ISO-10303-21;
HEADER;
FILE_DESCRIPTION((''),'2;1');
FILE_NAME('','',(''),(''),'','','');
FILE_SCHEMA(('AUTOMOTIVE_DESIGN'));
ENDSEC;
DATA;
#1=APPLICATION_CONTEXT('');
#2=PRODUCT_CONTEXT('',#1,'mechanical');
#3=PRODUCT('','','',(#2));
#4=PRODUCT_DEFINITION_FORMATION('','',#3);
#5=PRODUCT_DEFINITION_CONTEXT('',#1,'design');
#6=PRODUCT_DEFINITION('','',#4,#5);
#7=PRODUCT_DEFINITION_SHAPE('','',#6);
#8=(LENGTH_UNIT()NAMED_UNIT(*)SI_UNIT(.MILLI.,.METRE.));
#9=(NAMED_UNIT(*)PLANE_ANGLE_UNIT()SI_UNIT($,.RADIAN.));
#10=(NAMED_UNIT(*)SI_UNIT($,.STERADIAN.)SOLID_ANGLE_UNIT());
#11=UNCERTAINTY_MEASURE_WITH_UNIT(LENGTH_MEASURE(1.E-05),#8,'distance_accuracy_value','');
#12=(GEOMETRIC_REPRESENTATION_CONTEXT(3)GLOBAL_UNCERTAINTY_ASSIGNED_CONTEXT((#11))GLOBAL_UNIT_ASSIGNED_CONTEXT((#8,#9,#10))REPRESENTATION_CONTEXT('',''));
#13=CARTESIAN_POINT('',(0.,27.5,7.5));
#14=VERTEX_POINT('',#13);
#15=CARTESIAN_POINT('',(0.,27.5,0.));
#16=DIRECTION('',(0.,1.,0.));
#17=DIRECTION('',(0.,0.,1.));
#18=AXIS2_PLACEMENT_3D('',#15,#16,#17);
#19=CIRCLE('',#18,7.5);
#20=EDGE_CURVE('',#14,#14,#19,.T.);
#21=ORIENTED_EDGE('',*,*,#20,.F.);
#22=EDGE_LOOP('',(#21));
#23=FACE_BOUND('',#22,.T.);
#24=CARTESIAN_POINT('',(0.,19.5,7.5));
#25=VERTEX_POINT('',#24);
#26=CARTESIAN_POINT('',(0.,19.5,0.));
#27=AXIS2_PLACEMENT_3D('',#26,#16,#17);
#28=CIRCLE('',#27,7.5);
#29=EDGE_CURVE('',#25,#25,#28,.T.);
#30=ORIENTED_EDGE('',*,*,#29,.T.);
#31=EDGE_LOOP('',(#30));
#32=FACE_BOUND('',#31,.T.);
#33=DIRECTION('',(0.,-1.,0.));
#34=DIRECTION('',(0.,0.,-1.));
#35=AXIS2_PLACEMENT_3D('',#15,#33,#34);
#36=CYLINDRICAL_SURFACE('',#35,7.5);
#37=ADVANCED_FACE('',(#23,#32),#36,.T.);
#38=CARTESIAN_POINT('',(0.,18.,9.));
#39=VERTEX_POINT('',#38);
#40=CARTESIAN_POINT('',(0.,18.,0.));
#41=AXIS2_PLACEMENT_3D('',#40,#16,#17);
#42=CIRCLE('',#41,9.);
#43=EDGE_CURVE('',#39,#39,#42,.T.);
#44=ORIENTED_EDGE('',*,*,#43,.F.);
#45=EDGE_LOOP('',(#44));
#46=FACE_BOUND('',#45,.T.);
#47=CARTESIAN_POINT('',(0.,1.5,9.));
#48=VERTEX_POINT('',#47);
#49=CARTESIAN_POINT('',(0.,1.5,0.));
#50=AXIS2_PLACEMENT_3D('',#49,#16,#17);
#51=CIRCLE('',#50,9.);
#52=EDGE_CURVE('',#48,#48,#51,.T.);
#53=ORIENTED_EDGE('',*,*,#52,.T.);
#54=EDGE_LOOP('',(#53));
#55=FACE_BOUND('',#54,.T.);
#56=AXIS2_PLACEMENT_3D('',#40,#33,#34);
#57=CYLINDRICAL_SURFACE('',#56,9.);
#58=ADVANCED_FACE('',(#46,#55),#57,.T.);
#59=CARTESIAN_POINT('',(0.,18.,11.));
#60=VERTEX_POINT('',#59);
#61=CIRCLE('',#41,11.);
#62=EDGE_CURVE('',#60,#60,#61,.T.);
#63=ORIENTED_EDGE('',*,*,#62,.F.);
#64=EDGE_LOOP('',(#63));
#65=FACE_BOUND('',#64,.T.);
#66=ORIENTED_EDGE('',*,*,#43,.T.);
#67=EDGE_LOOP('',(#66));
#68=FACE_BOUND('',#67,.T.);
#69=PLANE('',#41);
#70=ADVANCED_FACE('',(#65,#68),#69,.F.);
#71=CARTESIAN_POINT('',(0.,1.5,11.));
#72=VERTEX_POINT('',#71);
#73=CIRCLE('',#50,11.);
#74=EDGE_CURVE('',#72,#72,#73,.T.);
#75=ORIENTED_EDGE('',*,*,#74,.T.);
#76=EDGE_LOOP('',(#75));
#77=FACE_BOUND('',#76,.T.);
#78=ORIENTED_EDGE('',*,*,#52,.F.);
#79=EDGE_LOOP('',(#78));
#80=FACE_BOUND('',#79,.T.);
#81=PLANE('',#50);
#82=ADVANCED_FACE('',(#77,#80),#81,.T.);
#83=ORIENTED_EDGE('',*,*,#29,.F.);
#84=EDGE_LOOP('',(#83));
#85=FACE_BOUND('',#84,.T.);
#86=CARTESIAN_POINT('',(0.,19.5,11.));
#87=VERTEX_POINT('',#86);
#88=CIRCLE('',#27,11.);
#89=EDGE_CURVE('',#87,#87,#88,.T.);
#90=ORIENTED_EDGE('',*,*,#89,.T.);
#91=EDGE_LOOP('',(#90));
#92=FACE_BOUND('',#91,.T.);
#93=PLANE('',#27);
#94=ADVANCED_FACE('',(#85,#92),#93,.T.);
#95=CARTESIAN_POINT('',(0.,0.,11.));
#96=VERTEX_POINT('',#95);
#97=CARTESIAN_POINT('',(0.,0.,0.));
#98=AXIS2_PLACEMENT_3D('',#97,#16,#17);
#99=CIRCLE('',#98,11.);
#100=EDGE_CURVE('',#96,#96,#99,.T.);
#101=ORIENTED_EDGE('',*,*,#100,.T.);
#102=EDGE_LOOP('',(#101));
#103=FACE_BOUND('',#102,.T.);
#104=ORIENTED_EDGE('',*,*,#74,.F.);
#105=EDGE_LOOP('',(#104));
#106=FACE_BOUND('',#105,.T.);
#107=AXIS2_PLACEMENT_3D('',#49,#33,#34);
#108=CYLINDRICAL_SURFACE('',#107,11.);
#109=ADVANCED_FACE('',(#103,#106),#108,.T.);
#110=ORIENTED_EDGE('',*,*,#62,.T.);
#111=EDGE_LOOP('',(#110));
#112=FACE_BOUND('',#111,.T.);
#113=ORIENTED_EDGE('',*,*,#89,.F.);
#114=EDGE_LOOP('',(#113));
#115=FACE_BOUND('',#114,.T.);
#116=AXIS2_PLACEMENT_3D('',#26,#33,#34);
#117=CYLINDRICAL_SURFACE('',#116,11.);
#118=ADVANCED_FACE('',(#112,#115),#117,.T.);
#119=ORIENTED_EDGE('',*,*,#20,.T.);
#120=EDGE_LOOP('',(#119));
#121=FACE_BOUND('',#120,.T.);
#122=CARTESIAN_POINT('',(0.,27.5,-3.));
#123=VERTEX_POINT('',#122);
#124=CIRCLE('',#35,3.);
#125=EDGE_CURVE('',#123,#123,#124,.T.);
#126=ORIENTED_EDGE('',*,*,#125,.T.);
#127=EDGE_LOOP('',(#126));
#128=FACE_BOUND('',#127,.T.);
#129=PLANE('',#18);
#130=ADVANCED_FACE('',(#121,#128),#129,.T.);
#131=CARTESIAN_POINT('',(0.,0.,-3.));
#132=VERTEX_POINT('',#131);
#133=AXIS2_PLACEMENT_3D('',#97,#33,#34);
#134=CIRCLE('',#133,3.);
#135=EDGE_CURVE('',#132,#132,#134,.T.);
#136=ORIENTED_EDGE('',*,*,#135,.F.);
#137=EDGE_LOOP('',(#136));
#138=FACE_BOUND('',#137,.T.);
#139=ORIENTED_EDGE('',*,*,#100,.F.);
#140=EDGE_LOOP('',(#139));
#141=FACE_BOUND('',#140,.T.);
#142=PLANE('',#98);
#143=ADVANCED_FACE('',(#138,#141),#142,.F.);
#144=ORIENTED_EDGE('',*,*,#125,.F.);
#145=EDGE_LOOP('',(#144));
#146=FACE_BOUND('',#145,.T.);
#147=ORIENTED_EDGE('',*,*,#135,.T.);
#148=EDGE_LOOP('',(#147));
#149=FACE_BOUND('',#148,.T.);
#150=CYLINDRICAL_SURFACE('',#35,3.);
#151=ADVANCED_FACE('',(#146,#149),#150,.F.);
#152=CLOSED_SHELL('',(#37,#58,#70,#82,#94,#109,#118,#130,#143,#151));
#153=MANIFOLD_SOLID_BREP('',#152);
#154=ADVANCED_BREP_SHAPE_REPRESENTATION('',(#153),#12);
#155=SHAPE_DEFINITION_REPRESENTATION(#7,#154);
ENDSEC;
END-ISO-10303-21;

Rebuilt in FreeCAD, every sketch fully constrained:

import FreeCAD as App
import Part
import Sketcher
Q = App.Units.Quantity

doc = App.newDocument("Part")
params = doc.addObject("Spreadsheet::Sheet", "Params")
for row, (alias, value) in enumerate([
    ("sketch1_diameter", "22 mm"),
    ("pad1_length", "1.5 mm"),
    ("sketch2_diameter", "18 mm"),
    ("pad2_length", "16.5 mm"),
    ("sketch3_diameter", "22 mm"),
    ("pad3_length", "1.5 mm"),
    ("sketch4_diameter", "15 mm"),
    ("pad4_length", "8 mm"),
    ("sketch5_diameter", "6 mm"),
], start=1):
    params.set(f"A{row}", alias)
    params.set(f"B{row}", "=" + value)
    params.setAlias(f"B{row}", alias)

body = doc.addObject("PartDesign::Body", "Body")

# Sketch on XZ plane
sketch1 = body.newObject("Sketcher::SketchObject", "Sketch")
sketch1.AttachmentSupport = (doc.getObject("XZ_Plane"), [""])
sketch1.MapMode = "FlatFace"
sketch1.addGeometry(Part.Circle(App.Vector(0, 0, 0), App.Vector(0, 0, 1), 11), False)
sketch1.addConstraint([
    Sketcher.Constraint("Coincident", 0, 3, -1, 1),
    Sketcher.Constraint("Diameter", 0, Q("22 mm")),
])
sketch1.setExpression("Constraints[1]", "Params.sketch1_diameter")
pad1 = body.newObject("PartDesign::Pad", "Pad")
pad1.Profile = sketch1
pad1.setExpression("Length", "Params.pad1_length")
pad1.Reversed = True

# Sketch on XZ plane
sketch2 = body.newObject("Sketcher::SketchObject", "Sketch001")
sketch2.AttachmentSupport = (doc.getObject("XZ_Plane"), [""])
sketch2.MapMode = "FlatFace"
sketch2.AttachmentOffset = App.Placement(App.Vector(0, 0, -1.5), App.Rotation())
sketch2.addGeometry(Part.Circle(App.Vector(0, 0, 0), App.Vector(0, 0, 1), 9), False)
sketch2.addConstraint([
    Sketcher.Constraint("Coincident", 0, 3, -1, 1),
    Sketcher.Constraint("Diameter", 0, Q("18 mm")),
])
sketch2.setExpression("Constraints[1]", "Params.sketch2_diameter")
pad2 = body.newObject("PartDesign::Pad", "Pad001")
pad2.Profile = sketch2
pad2.setExpression("Length", "Params.pad2_length")
pad2.Reversed = True

# Sketch on XZ plane
sketch3 = body.newObject("Sketcher::SketchObject", "Sketch002")
sketch3.AttachmentSupport = (doc.getObject("XZ_Plane"), [""])
sketch3.MapMode = "FlatFace"
sketch3.AttachmentOffset = App.Placement(App.Vector(0, 0, -18), App.Rotation())
sketch3.addGeometry(Part.Circle(App.Vector(0, 0, 0), App.Vector(0, 0, 1), 11), False)
sketch3.addConstraint([
    Sketcher.Constraint("Coincident", 0, 3, -1, 1),
    Sketcher.Constraint("Diameter", 0, Q("22 mm")),
])
sketch3.setExpression("Constraints[1]", "Params.sketch3_diameter")
pad3 = body.newObject("PartDesign::Pad", "Pad002")
pad3.Profile = sketch3
pad3.setExpression("Length", "Params.pad3_length")
pad3.Reversed = True

# Sketch on XZ plane
sketch4 = body.newObject("Sketcher::SketchObject", "Sketch003")
sketch4.AttachmentSupport = (doc.getObject("XZ_Plane"), [""])
sketch4.MapMode = "FlatFace"
sketch4.AttachmentOffset = App.Placement(App.Vector(0, 0, -19.5), App.Rotation())
sketch4.addGeometry(Part.Circle(App.Vector(0, 0, 0), App.Vector(0, 0, 1), 8), False)
sketch4.addConstraint([
    Sketcher.Constraint("Coincident", 0, 3, -1, 1),
    Sketcher.Constraint("Diameter", 0, Q("15 mm")),
])
sketch4.setExpression("Constraints[1]", "Params.sketch4_diameter")
pad4 = body.newObject("PartDesign::Pad", "Pad003")
pad4.Profile = sketch4
pad4.setExpression("Length", "Params.pad4_length")
pad4.Reversed = True

# Sketch on XZ plane
sketch5 = body.newObject("Sketcher::SketchObject", "Sketch004")
sketch5.AttachmentSupport = (doc.getObject("XZ_Plane"), [""])
sketch5.MapMode = "FlatFace"
sketch5.addGeometry(Part.Circle(App.Vector(0, 0, 0), App.Vector(0, 0, 1), 3), False)
sketch5.addConstraint([
    Sketcher.Constraint("Coincident", 0, 3, -1, 1),
    Sketcher.Constraint("Diameter", 0, Q("6 mm")),
])
sketch5.setExpression("Constraints[1]", "Params.sketch5_diameter")
pocket1 = body.newObject("PartDesign::Pocket", "Pocket")
pocket1.Profile = sketch5
pocket1.Type = "ThroughAll"

doc.recompute()
